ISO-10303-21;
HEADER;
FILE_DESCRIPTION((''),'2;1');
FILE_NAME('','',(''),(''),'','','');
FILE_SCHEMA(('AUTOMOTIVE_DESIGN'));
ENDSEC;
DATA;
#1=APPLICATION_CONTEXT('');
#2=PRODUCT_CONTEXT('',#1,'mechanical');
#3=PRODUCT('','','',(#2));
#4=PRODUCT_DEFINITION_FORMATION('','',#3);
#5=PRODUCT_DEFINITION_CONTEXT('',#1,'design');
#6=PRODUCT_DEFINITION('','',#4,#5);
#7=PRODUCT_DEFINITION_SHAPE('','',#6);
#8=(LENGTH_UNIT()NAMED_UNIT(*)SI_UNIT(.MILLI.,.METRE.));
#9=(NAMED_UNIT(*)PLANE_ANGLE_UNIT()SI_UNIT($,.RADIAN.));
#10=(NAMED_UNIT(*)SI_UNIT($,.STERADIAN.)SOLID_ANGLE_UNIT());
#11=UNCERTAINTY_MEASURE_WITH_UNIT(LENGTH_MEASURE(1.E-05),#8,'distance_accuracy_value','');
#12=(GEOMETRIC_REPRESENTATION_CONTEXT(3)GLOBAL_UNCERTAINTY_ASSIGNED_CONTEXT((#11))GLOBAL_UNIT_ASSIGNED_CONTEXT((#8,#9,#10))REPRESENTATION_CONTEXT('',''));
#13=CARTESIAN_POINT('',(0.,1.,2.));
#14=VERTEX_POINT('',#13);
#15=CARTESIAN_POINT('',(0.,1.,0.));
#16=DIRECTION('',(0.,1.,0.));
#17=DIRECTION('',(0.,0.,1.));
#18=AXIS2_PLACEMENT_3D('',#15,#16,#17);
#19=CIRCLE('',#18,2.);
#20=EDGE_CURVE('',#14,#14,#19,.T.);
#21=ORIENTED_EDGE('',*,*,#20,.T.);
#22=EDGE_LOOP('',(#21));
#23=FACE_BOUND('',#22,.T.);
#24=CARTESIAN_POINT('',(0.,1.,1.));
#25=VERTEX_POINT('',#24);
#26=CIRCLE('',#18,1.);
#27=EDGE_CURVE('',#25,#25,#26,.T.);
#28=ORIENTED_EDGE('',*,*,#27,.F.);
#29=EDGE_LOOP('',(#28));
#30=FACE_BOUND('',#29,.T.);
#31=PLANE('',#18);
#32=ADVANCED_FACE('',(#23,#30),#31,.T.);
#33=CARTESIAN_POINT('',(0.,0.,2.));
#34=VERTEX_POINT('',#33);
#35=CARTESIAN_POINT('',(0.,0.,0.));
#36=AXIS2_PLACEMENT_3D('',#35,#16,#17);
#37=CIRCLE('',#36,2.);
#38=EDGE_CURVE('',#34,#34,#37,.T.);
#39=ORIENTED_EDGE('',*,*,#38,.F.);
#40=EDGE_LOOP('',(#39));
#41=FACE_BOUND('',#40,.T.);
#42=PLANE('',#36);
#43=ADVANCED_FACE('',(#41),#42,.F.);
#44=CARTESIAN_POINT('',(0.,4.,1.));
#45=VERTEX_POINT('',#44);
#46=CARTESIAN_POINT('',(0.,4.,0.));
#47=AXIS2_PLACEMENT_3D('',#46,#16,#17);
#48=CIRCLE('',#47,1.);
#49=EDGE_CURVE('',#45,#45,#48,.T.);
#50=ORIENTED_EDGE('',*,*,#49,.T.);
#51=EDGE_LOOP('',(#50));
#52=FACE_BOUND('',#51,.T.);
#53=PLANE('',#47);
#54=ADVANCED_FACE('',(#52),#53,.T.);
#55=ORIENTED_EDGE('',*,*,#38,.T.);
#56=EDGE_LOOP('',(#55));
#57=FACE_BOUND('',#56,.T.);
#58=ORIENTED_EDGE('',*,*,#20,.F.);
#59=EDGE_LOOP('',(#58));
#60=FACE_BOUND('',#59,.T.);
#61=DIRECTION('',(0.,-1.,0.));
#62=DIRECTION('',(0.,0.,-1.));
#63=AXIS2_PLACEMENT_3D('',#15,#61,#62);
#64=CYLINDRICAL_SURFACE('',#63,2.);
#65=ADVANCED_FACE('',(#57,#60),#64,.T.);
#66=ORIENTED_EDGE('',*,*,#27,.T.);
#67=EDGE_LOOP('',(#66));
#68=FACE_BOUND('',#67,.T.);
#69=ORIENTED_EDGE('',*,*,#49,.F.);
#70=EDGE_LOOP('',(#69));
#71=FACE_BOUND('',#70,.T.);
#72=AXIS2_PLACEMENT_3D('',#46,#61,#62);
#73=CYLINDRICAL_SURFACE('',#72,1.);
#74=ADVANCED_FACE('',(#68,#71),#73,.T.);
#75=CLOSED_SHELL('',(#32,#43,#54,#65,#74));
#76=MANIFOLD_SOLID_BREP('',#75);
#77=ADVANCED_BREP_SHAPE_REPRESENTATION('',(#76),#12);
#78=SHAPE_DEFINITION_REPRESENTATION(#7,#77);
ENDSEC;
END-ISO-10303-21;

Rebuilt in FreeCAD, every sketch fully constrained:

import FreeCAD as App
import Part
import Sketcher
Q = App.Units.Quantity

doc = App.newDocument("Part")
params = doc.addObject("Spreadsheet::Sheet", "Params")
for row, (alias, value) in enumerate([
    ("sketch1_diameter", "4 mm"),
    ("pad1_length", "1 mm"),
    ("sketch2_diameter", "2 mm"),
    ("pad2_length", "3 mm"),
], start=1):
    params.set(f"A{row}", alias)
    params.set(f"B{row}", "=" + value)
    params.setAlias(f"B{row}", alias)

body = doc.addObject("PartDesign::Body", "Body")

sketch1 = doc.addObject("Sketcher::SketchObject", "Sketch")
body.addObject(sketch1)
sketch1.AttachmentSupport = (doc.XZ_Plane, [""])
sketch1.MapMode = "FlatFace"
sketch1.addGeometry(Part.Circle(App.Vector(0, 0, 0), App.Vector(0, 0, 1), 2), False)
sketch1.addConstraint(Sketcher.Constraint("Coincident", 0, 3, -1, 1))
sketch1.addConstraint(Sketcher.Constraint("Diameter", 0, Q("4 mm")))
sketch1.setExpression("Constraints[1]", "Params.sketch1_diameter")
pad1 = doc.addObject("PartDesign::Pad", "Pad")
body.addObject(pad1)
pad1.Profile = sketch1
pad1.setExpression("Length", "Params.pad1_length")
pad1.Reversed = True

sketch2 = doc.addObject("Sketcher::SketchObject", "Sketch001")
body.addObject(sketch2)
sketch2.AttachmentSupport = (doc.XZ_Plane, [""])
sketch2.MapMode = "FlatFace"
sketch2.AttachmentOffset = App.Placement(App.Vector(0, 0, -1), App.Rotation())
sketch2.addGeometry(Part.Circle(App.Vector(0, 0, 0), App.Vector(0, 0, 1), 1), False)
sketch2.addConstraint(Sketcher.Constraint("Coincident", 0, 3, -1, 1))
sketch2.addConstraint(Sketcher.Constraint("Diameter", 0, Q("2 mm")))
sketch2.setExpression("Constraints[1]", "Params.sketch2_diameter")
pad2 = doc.addObject("PartDesign::Pad", "Pad001")
body.addObject(pad2)
pad2.Profile = sketch2
pad2.setExpression("Length", "Params.pad2_length")
pad2.Reversed = True

doc.recompute()
